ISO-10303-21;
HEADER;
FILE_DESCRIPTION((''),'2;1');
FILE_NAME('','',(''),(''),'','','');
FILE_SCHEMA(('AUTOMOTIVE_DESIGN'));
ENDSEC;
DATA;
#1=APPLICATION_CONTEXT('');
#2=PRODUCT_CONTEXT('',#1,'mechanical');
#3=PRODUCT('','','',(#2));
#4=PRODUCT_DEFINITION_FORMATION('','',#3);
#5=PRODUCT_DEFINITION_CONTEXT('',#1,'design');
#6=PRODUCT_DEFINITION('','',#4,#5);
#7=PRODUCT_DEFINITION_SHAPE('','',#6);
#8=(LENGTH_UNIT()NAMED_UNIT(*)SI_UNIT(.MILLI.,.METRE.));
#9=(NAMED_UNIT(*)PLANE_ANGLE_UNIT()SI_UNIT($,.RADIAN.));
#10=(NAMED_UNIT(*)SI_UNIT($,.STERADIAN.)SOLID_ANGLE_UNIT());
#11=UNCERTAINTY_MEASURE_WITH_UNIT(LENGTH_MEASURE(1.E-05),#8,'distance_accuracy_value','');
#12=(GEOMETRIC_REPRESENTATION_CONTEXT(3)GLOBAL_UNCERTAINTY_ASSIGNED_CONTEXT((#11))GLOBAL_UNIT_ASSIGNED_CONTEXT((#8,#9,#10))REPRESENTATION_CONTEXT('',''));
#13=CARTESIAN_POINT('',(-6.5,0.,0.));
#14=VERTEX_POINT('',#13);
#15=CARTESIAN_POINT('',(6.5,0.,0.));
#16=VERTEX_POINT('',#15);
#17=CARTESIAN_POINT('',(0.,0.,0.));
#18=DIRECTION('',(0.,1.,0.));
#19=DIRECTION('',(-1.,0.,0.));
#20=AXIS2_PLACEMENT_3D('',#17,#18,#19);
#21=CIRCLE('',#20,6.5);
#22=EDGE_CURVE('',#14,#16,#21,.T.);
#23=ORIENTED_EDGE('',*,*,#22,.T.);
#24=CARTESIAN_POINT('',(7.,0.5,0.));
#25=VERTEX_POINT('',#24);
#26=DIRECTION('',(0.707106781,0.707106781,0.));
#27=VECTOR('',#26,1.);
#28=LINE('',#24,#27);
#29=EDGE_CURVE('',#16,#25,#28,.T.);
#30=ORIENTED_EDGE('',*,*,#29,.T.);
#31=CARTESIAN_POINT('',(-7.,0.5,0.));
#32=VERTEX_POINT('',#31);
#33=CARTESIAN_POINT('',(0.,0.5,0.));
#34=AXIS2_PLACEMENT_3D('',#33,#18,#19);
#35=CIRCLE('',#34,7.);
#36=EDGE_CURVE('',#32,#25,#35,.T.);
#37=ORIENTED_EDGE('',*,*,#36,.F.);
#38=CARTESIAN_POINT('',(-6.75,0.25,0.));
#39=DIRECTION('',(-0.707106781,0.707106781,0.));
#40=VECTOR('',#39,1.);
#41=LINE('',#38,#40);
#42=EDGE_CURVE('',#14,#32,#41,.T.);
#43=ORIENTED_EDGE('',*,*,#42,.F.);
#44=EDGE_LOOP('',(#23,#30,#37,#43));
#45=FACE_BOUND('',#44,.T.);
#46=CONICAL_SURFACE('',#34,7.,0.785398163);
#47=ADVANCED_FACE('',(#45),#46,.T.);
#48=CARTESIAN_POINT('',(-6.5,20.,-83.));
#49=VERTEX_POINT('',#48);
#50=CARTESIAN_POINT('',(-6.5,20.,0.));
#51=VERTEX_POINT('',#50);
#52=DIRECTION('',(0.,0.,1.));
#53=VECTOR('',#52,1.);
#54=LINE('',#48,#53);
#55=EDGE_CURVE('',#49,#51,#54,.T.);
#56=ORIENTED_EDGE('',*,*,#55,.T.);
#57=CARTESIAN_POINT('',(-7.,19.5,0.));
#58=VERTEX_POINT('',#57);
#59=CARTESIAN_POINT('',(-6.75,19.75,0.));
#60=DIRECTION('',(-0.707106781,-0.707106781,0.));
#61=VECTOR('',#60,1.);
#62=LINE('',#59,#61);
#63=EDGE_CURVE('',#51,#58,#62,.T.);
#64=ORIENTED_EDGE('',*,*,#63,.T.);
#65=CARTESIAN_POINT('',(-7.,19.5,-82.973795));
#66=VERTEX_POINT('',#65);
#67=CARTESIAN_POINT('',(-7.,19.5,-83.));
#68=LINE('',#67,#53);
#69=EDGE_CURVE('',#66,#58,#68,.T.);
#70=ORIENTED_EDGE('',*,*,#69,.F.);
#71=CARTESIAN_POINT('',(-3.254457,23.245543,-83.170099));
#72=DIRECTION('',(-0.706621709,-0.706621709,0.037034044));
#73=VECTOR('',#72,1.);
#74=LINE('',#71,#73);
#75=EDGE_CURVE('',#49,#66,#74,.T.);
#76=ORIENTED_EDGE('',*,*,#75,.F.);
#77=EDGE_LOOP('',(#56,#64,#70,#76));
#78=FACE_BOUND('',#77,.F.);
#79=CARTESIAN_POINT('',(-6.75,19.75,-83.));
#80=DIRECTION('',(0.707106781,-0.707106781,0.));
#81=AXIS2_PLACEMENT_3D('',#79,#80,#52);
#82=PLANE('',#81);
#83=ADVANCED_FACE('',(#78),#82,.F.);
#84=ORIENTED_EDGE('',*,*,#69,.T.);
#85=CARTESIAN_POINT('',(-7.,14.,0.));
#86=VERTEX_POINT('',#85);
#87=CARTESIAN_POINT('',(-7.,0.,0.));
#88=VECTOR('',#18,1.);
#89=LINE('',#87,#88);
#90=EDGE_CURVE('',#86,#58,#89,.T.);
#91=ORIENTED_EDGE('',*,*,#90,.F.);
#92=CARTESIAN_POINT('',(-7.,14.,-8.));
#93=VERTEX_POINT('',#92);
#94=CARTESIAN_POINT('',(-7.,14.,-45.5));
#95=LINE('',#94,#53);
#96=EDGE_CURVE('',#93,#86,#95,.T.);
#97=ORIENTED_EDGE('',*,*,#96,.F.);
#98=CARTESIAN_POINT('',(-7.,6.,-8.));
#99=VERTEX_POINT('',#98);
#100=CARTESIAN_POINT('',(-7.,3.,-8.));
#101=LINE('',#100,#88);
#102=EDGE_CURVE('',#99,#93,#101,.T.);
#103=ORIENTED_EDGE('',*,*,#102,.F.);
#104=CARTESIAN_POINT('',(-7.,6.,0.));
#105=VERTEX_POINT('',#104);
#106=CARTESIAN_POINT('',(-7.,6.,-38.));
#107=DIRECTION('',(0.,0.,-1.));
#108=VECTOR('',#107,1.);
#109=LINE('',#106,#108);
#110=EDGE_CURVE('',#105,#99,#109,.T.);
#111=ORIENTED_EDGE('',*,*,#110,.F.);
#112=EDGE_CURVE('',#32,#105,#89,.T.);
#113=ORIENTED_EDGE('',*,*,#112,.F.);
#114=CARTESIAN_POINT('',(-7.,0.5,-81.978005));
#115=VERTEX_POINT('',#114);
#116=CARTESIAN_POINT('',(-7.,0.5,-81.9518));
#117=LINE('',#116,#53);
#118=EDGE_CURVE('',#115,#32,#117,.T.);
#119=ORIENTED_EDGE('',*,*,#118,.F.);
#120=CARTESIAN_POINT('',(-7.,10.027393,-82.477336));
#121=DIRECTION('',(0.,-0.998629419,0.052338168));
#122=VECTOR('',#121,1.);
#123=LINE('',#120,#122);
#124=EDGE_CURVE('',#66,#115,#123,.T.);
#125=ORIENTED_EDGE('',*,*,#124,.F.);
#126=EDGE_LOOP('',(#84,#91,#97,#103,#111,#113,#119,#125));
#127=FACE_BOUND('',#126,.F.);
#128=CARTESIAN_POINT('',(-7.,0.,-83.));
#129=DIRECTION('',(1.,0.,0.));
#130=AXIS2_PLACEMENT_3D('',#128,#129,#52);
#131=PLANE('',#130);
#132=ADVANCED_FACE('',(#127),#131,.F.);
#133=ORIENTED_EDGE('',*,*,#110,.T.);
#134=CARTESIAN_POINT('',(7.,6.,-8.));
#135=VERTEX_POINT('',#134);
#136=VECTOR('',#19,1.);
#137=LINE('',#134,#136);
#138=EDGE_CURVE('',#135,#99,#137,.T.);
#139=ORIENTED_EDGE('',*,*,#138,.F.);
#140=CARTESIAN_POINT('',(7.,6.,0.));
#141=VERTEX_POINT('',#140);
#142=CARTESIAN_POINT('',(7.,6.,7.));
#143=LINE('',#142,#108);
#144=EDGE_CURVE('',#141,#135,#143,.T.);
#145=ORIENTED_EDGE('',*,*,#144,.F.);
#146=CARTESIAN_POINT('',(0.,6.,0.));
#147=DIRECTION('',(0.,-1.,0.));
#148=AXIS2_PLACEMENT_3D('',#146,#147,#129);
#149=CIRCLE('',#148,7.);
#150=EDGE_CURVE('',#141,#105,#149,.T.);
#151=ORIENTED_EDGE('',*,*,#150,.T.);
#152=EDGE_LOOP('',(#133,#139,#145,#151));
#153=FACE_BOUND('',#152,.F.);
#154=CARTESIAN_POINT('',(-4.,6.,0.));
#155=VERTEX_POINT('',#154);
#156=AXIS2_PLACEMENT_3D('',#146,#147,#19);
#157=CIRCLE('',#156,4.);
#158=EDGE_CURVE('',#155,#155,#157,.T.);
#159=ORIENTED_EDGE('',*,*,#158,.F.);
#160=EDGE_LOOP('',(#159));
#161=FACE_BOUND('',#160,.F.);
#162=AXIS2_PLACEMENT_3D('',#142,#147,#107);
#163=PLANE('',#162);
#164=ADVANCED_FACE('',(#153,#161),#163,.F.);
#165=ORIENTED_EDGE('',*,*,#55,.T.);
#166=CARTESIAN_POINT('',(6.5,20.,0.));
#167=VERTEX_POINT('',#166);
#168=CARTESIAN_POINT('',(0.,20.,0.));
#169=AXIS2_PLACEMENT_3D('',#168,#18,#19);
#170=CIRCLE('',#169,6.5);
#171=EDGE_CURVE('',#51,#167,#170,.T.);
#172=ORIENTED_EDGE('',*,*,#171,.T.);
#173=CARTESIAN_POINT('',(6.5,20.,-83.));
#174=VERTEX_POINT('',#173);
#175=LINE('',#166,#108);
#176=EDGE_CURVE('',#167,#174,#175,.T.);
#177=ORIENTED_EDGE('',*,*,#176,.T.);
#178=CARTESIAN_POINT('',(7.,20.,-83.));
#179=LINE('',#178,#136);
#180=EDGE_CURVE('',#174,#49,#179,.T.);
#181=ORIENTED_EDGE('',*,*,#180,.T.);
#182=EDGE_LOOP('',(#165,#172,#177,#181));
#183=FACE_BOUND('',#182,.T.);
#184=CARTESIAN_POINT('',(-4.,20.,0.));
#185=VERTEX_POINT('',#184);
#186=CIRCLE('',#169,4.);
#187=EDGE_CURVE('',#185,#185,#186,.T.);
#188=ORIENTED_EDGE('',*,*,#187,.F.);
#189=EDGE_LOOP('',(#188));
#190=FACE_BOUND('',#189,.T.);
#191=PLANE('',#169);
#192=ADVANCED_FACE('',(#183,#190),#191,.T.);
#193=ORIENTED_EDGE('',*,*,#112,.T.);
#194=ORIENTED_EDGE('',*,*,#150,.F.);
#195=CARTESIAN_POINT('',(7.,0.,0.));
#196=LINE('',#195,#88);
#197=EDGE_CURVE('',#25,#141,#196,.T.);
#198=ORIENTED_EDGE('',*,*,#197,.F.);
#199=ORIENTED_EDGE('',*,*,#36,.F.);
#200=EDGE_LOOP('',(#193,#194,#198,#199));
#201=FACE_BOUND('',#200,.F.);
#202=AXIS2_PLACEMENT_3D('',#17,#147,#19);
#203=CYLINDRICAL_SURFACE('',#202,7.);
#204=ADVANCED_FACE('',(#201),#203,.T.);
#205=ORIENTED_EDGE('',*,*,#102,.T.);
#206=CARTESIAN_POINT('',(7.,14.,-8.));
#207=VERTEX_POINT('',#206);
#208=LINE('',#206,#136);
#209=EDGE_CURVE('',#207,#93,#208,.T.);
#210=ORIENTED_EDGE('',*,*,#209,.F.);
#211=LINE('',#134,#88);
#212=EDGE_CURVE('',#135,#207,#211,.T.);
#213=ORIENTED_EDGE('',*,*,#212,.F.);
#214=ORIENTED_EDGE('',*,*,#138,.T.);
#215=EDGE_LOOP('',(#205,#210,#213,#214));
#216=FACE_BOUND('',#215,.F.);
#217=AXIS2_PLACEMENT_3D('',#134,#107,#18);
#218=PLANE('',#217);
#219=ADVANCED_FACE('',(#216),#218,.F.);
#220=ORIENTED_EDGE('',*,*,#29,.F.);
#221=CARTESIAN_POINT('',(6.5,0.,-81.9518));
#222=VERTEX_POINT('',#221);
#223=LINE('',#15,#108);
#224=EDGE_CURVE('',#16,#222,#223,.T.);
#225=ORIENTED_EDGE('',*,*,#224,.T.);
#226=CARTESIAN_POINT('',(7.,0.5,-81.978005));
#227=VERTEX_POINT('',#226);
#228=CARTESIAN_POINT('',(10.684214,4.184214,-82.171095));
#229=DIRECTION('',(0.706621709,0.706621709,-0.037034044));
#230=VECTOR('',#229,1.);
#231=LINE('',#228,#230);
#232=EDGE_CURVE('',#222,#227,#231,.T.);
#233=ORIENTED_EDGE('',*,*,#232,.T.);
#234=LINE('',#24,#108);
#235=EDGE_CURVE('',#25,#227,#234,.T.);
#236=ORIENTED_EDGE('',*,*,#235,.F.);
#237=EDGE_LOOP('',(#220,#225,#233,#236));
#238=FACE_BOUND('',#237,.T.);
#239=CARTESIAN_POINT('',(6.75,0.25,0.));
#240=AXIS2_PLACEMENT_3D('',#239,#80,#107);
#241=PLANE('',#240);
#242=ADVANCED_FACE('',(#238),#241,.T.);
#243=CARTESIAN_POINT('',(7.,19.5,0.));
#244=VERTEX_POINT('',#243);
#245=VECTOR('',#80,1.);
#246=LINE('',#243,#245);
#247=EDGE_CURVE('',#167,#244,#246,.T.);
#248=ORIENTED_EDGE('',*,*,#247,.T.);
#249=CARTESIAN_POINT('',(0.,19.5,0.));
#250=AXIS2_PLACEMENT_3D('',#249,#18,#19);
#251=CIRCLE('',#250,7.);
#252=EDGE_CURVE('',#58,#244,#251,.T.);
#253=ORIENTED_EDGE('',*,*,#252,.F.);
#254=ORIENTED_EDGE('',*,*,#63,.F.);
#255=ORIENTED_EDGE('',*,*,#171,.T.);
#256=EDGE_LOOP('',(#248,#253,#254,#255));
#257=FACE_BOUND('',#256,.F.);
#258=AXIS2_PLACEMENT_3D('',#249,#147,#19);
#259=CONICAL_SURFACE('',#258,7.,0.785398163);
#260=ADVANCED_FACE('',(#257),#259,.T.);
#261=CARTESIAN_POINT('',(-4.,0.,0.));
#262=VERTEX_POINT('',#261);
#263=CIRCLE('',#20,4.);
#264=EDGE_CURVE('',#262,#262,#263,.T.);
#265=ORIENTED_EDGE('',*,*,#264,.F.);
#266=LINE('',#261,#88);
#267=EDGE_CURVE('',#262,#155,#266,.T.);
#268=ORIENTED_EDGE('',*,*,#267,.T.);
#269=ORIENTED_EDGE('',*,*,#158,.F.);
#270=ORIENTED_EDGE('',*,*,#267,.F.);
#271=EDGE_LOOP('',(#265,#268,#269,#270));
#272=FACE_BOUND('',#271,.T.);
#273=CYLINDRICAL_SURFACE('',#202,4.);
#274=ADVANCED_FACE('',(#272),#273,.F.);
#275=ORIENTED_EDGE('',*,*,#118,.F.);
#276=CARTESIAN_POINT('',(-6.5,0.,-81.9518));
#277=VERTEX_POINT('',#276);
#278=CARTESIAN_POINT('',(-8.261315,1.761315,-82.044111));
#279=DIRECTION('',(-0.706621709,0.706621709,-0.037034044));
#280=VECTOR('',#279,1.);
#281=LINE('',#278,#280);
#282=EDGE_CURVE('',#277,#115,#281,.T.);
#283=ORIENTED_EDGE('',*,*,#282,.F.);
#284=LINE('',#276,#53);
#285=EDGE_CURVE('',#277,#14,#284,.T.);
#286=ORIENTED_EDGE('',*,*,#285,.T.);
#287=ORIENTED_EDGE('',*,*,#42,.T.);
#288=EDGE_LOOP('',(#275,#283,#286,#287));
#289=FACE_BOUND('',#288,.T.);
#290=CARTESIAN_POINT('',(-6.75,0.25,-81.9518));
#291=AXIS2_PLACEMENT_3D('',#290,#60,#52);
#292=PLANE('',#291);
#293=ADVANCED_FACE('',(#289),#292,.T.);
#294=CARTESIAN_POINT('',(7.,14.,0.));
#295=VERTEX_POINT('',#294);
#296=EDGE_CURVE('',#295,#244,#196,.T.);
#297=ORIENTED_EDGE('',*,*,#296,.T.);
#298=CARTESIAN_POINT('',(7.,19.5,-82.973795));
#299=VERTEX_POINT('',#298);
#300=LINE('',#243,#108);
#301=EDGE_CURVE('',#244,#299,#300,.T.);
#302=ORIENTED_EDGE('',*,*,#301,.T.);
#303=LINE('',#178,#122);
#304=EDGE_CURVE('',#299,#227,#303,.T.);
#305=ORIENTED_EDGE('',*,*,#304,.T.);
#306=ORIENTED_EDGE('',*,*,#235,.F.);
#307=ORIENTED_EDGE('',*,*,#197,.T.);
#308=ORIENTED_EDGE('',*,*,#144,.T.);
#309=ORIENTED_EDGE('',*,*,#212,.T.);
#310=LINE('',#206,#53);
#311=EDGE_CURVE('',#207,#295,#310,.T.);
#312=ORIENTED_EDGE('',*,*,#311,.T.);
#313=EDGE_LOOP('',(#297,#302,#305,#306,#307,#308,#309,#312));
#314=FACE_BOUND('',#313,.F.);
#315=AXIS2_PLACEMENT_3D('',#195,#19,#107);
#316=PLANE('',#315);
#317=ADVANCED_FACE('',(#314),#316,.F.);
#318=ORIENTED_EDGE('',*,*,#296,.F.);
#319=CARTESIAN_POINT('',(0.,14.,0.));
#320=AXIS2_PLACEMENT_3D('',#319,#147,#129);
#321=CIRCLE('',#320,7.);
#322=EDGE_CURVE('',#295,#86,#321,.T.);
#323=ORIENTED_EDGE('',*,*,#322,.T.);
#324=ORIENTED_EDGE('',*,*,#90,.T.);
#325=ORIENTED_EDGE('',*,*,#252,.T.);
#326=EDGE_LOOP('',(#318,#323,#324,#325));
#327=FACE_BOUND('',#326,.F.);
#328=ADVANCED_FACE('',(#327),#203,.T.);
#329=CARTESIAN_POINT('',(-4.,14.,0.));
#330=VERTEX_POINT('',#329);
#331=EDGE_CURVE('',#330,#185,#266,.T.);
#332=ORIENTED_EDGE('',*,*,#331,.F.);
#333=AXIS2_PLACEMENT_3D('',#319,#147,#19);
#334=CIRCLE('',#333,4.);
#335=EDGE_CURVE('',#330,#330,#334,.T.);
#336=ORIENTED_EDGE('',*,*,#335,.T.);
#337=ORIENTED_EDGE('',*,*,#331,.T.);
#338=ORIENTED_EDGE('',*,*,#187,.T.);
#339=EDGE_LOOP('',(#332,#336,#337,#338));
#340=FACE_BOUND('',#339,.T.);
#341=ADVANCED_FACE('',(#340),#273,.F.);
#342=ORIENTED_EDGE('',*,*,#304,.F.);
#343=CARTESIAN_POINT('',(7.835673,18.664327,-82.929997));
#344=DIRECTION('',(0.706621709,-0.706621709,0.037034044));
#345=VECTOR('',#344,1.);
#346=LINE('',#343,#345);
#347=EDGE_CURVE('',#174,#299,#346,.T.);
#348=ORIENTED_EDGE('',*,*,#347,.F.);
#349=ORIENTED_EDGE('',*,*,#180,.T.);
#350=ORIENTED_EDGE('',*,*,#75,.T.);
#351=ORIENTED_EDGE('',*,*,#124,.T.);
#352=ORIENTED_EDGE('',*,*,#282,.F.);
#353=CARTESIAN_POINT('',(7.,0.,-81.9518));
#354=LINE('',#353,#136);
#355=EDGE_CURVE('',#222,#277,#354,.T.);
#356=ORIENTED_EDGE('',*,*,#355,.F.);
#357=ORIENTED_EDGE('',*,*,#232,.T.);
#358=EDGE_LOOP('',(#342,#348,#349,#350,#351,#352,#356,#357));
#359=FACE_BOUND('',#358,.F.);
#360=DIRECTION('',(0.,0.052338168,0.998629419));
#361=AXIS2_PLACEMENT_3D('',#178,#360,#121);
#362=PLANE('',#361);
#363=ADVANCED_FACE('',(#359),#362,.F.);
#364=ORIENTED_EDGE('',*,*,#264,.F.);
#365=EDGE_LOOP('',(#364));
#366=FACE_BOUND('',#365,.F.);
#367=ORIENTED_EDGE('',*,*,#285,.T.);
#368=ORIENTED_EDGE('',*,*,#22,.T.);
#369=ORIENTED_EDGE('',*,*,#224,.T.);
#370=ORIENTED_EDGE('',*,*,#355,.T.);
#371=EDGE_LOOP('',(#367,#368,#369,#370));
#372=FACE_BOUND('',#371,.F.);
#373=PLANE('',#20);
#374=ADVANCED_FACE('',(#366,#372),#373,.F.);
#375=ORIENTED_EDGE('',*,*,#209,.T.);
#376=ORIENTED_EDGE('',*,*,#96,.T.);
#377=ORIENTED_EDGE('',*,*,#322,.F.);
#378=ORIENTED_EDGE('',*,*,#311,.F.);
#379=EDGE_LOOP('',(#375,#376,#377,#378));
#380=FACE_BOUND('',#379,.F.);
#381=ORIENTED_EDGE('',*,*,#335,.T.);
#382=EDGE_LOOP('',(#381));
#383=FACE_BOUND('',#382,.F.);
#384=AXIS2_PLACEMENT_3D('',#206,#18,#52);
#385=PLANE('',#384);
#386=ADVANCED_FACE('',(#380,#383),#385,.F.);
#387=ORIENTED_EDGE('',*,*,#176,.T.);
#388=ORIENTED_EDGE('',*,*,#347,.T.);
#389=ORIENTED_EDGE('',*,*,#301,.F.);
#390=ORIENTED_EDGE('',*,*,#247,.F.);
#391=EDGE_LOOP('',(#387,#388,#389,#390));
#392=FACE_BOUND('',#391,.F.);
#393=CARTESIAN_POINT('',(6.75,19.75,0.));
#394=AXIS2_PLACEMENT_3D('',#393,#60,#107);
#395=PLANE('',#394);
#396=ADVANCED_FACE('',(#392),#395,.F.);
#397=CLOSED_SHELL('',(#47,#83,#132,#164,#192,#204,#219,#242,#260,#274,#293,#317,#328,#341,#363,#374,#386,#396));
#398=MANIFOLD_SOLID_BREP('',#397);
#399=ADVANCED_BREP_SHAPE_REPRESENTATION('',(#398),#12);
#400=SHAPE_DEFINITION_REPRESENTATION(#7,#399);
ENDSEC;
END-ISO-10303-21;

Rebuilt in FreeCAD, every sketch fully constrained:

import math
import FreeCAD as App
import Part
import Sketcher
from FreeCAD import Vector
Q = App.Units.Quantity


def edges_at(feature, points):
    """Names of the edges that pass closest to the given points."""
    edges = feature.Shape.Edges
    near = lambda p: min(range(len(edges)), key=lambda i: edges[i].distToShape(Part.Vertex(*p))[0])
    return sorted({f"Edge{near(p) + 1}" for p in points})


def add_polygon(sketch, points):
    """Adds a closed chain of lines whose ends are joined by coincident constraints."""
    first, n = sketch.GeometryCount, len(points)
    for a, b in zip(points, points[1:] + points[:1]):
        sketch.addGeometry(Part.LineSegment(App.Vector(*a, 0), App.Vector(*b, 0)), False)
    for i in range(n):
        sketch.addConstraint(Sketcher.Constraint("Coincident", first + i, 2, first + (i + 1) % n, 1))

doc = App.newDocument("Part")
body = doc.addObject("PartDesign::Body", "Body")

sketch1 = body.newObject("Sketcher::SketchObject", "Sketch")
sketch1.AttachmentSupport = (doc.getObject("XZ_Plane"), [""])
sketch1.MapMode = "FlatFace"
sketch1.addGeometry(Part.LineSegment(Vector(-7, -83, 0), Vector(-7, 0, 0)), False)
sketch1.addGeometry(Part.ArcOfCircle(Part.Circle(Vector(0, 0, 0), Vector(0, 0, 1), 7), math.radians(0), math.radians(180)), False)
sketch1.addGeometry(Part.LineSegment(Vector(7, 0, 0), Vector(7, -83, 0)), False)
sketch1.addGeometry(Part.LineSegment(Vector(7, -83, 0), Vector(-7, -83, 0)), False)
sketch1.addGeometry(Part.Circle(Vector(0, 0, 0), Vector(0, 0, 1), 4), False)
sketch1.addConstraint(Sketcher.Constraint("Tangent", 0, 2, 1, 2))
sketch1.addConstraint(Sketcher.Constraint("Tangent", 1, 1, 2, 1))
sketch1.addConstraint(Sketcher.Constraint("Coincident", 2, 2, 3, 1))
sketch1.addConstraint(Sketcher.Constraint("Coincident", 3, 2, 0, 1))
sketch1.addConstraint(Sketcher.Constraint("Vertical", 0))
sketch1.addConstraint(Sketcher.Constraint("Vertical", 2))
sketch1.addConstraint(Sketcher.Constraint("Horizontal", 3))
sketch1.addConstraint(Sketcher.Constraint("Coincident", 1, 3, -1, 1))
sketch1.addConstraint(Sketcher.Constraint("Coincident", 4, 3, -1, 1))
sketch1.addConstraint(Sketcher.Constraint("Diameter", 4, 8.0))
sketch1.addConstraint(Sketcher.Constraint("Radius", 1, 7.0))
sketch1.addConstraint(Sketcher.Constraint("DistanceY", 0, 1, 0, 2, 83.0))
pad1 = body.newObject("PartDesign::Pad", "Pad")
pad1.Profile = sketch1
pad1.Length = 20
pad1.Reversed = True

sketch2 = body.newObject("Sketcher::SketchObject", "Sketch001")
sketch2.AttachmentSupport = (doc.getObject("YZ_Plane"), [""])
sketch2.MapMode = "FlatFace"
sketch2.AttachmentOffset = App.Placement(Vector(0, 0, 7), App.Rotation())
add_polygon(sketch2, [(0, -82), (0, -83), (20, -83)])
sketch2.addConstraint(Sketcher.Constraint("Vertical", 0))
sketch2.addConstraint(Sketcher.Constraint("Horizontal", 1))
sketch2.addConstraint(Sketcher.Constraint("PointOnObject", 0, 2, -2))
sketch2.addConstraint(Sketcher.Constraint("DistanceX", 1, 1, 1, 2, 20.0))
sketch2.addConstraint(Sketcher.Constraint("Angle", 2, Q("176.9999 deg")))
sketch2.addConstraint(Sketcher.Constraint("DistanceY", 0, 2, -1, 1, 83.0))
pocket1 = body.newObject("PartDesign::Pocket", "Pocket")
pocket1.Profile = sketch2
pocket1.Type = "ThroughAll"

sketch3 = body.newObject("Sketcher::SketchObject", "Sketch002")
sketch3.AttachmentSupport = (doc.getObject("YZ_Plane"), [""])
sketch3.MapMode = "FlatFace"
sketch3.AttachmentOffset = App.Placement(Vector(0, 0, 7), App.Rotation())
add_polygon(sketch3, [(14, 7), (6, 7), (6, -8), (14, -8)])
sketch3.addConstraint(Sketcher.Constraint("Horizontal", 0))
sketch3.addConstraint(Sketcher.Constraint("Vertical", 1))
sketch3.addConstraint(Sketcher.Constraint("Horizontal", 2))
sketch3.addConstraint(Sketcher.Constraint("Vertical", 3))
sketch3.addConstraint(Sketcher.Constraint("DistanceX", 0, 2, 0, 1, 8.0))
sketch3.addConstraint(Sketcher.Constraint("DistanceY", 1, 2, 1, 1, 15.0))
sketch3.addConstraint(Sketcher.Constraint("DistanceY", -1, 1, 0, 2, 7.0))
sketch3.addConstraint(Sketcher.Constraint("DistanceX", -1, 1, 0, 2, 6.0))
pocket2 = body.newObject("PartDesign::Pocket", "Pocket001")
pocket2.Profile = sketch3
pocket2.Type = "ThroughAll"
doc.recompute()

chamfer = body.newObject("PartDesign::Chamfer", "Chamfer")
chamfer.Base = (pocket2, edges_at(pocket2, [
    (7, 0, -40.976),
    (0, 0, 7),
    (-7, 0, -40.976),
    (7, 20, -41.5),
    (0, 20, 7),
    (-7, 20, -41.5),
]))
chamfer.Size = 0.5

doc.recompute()
